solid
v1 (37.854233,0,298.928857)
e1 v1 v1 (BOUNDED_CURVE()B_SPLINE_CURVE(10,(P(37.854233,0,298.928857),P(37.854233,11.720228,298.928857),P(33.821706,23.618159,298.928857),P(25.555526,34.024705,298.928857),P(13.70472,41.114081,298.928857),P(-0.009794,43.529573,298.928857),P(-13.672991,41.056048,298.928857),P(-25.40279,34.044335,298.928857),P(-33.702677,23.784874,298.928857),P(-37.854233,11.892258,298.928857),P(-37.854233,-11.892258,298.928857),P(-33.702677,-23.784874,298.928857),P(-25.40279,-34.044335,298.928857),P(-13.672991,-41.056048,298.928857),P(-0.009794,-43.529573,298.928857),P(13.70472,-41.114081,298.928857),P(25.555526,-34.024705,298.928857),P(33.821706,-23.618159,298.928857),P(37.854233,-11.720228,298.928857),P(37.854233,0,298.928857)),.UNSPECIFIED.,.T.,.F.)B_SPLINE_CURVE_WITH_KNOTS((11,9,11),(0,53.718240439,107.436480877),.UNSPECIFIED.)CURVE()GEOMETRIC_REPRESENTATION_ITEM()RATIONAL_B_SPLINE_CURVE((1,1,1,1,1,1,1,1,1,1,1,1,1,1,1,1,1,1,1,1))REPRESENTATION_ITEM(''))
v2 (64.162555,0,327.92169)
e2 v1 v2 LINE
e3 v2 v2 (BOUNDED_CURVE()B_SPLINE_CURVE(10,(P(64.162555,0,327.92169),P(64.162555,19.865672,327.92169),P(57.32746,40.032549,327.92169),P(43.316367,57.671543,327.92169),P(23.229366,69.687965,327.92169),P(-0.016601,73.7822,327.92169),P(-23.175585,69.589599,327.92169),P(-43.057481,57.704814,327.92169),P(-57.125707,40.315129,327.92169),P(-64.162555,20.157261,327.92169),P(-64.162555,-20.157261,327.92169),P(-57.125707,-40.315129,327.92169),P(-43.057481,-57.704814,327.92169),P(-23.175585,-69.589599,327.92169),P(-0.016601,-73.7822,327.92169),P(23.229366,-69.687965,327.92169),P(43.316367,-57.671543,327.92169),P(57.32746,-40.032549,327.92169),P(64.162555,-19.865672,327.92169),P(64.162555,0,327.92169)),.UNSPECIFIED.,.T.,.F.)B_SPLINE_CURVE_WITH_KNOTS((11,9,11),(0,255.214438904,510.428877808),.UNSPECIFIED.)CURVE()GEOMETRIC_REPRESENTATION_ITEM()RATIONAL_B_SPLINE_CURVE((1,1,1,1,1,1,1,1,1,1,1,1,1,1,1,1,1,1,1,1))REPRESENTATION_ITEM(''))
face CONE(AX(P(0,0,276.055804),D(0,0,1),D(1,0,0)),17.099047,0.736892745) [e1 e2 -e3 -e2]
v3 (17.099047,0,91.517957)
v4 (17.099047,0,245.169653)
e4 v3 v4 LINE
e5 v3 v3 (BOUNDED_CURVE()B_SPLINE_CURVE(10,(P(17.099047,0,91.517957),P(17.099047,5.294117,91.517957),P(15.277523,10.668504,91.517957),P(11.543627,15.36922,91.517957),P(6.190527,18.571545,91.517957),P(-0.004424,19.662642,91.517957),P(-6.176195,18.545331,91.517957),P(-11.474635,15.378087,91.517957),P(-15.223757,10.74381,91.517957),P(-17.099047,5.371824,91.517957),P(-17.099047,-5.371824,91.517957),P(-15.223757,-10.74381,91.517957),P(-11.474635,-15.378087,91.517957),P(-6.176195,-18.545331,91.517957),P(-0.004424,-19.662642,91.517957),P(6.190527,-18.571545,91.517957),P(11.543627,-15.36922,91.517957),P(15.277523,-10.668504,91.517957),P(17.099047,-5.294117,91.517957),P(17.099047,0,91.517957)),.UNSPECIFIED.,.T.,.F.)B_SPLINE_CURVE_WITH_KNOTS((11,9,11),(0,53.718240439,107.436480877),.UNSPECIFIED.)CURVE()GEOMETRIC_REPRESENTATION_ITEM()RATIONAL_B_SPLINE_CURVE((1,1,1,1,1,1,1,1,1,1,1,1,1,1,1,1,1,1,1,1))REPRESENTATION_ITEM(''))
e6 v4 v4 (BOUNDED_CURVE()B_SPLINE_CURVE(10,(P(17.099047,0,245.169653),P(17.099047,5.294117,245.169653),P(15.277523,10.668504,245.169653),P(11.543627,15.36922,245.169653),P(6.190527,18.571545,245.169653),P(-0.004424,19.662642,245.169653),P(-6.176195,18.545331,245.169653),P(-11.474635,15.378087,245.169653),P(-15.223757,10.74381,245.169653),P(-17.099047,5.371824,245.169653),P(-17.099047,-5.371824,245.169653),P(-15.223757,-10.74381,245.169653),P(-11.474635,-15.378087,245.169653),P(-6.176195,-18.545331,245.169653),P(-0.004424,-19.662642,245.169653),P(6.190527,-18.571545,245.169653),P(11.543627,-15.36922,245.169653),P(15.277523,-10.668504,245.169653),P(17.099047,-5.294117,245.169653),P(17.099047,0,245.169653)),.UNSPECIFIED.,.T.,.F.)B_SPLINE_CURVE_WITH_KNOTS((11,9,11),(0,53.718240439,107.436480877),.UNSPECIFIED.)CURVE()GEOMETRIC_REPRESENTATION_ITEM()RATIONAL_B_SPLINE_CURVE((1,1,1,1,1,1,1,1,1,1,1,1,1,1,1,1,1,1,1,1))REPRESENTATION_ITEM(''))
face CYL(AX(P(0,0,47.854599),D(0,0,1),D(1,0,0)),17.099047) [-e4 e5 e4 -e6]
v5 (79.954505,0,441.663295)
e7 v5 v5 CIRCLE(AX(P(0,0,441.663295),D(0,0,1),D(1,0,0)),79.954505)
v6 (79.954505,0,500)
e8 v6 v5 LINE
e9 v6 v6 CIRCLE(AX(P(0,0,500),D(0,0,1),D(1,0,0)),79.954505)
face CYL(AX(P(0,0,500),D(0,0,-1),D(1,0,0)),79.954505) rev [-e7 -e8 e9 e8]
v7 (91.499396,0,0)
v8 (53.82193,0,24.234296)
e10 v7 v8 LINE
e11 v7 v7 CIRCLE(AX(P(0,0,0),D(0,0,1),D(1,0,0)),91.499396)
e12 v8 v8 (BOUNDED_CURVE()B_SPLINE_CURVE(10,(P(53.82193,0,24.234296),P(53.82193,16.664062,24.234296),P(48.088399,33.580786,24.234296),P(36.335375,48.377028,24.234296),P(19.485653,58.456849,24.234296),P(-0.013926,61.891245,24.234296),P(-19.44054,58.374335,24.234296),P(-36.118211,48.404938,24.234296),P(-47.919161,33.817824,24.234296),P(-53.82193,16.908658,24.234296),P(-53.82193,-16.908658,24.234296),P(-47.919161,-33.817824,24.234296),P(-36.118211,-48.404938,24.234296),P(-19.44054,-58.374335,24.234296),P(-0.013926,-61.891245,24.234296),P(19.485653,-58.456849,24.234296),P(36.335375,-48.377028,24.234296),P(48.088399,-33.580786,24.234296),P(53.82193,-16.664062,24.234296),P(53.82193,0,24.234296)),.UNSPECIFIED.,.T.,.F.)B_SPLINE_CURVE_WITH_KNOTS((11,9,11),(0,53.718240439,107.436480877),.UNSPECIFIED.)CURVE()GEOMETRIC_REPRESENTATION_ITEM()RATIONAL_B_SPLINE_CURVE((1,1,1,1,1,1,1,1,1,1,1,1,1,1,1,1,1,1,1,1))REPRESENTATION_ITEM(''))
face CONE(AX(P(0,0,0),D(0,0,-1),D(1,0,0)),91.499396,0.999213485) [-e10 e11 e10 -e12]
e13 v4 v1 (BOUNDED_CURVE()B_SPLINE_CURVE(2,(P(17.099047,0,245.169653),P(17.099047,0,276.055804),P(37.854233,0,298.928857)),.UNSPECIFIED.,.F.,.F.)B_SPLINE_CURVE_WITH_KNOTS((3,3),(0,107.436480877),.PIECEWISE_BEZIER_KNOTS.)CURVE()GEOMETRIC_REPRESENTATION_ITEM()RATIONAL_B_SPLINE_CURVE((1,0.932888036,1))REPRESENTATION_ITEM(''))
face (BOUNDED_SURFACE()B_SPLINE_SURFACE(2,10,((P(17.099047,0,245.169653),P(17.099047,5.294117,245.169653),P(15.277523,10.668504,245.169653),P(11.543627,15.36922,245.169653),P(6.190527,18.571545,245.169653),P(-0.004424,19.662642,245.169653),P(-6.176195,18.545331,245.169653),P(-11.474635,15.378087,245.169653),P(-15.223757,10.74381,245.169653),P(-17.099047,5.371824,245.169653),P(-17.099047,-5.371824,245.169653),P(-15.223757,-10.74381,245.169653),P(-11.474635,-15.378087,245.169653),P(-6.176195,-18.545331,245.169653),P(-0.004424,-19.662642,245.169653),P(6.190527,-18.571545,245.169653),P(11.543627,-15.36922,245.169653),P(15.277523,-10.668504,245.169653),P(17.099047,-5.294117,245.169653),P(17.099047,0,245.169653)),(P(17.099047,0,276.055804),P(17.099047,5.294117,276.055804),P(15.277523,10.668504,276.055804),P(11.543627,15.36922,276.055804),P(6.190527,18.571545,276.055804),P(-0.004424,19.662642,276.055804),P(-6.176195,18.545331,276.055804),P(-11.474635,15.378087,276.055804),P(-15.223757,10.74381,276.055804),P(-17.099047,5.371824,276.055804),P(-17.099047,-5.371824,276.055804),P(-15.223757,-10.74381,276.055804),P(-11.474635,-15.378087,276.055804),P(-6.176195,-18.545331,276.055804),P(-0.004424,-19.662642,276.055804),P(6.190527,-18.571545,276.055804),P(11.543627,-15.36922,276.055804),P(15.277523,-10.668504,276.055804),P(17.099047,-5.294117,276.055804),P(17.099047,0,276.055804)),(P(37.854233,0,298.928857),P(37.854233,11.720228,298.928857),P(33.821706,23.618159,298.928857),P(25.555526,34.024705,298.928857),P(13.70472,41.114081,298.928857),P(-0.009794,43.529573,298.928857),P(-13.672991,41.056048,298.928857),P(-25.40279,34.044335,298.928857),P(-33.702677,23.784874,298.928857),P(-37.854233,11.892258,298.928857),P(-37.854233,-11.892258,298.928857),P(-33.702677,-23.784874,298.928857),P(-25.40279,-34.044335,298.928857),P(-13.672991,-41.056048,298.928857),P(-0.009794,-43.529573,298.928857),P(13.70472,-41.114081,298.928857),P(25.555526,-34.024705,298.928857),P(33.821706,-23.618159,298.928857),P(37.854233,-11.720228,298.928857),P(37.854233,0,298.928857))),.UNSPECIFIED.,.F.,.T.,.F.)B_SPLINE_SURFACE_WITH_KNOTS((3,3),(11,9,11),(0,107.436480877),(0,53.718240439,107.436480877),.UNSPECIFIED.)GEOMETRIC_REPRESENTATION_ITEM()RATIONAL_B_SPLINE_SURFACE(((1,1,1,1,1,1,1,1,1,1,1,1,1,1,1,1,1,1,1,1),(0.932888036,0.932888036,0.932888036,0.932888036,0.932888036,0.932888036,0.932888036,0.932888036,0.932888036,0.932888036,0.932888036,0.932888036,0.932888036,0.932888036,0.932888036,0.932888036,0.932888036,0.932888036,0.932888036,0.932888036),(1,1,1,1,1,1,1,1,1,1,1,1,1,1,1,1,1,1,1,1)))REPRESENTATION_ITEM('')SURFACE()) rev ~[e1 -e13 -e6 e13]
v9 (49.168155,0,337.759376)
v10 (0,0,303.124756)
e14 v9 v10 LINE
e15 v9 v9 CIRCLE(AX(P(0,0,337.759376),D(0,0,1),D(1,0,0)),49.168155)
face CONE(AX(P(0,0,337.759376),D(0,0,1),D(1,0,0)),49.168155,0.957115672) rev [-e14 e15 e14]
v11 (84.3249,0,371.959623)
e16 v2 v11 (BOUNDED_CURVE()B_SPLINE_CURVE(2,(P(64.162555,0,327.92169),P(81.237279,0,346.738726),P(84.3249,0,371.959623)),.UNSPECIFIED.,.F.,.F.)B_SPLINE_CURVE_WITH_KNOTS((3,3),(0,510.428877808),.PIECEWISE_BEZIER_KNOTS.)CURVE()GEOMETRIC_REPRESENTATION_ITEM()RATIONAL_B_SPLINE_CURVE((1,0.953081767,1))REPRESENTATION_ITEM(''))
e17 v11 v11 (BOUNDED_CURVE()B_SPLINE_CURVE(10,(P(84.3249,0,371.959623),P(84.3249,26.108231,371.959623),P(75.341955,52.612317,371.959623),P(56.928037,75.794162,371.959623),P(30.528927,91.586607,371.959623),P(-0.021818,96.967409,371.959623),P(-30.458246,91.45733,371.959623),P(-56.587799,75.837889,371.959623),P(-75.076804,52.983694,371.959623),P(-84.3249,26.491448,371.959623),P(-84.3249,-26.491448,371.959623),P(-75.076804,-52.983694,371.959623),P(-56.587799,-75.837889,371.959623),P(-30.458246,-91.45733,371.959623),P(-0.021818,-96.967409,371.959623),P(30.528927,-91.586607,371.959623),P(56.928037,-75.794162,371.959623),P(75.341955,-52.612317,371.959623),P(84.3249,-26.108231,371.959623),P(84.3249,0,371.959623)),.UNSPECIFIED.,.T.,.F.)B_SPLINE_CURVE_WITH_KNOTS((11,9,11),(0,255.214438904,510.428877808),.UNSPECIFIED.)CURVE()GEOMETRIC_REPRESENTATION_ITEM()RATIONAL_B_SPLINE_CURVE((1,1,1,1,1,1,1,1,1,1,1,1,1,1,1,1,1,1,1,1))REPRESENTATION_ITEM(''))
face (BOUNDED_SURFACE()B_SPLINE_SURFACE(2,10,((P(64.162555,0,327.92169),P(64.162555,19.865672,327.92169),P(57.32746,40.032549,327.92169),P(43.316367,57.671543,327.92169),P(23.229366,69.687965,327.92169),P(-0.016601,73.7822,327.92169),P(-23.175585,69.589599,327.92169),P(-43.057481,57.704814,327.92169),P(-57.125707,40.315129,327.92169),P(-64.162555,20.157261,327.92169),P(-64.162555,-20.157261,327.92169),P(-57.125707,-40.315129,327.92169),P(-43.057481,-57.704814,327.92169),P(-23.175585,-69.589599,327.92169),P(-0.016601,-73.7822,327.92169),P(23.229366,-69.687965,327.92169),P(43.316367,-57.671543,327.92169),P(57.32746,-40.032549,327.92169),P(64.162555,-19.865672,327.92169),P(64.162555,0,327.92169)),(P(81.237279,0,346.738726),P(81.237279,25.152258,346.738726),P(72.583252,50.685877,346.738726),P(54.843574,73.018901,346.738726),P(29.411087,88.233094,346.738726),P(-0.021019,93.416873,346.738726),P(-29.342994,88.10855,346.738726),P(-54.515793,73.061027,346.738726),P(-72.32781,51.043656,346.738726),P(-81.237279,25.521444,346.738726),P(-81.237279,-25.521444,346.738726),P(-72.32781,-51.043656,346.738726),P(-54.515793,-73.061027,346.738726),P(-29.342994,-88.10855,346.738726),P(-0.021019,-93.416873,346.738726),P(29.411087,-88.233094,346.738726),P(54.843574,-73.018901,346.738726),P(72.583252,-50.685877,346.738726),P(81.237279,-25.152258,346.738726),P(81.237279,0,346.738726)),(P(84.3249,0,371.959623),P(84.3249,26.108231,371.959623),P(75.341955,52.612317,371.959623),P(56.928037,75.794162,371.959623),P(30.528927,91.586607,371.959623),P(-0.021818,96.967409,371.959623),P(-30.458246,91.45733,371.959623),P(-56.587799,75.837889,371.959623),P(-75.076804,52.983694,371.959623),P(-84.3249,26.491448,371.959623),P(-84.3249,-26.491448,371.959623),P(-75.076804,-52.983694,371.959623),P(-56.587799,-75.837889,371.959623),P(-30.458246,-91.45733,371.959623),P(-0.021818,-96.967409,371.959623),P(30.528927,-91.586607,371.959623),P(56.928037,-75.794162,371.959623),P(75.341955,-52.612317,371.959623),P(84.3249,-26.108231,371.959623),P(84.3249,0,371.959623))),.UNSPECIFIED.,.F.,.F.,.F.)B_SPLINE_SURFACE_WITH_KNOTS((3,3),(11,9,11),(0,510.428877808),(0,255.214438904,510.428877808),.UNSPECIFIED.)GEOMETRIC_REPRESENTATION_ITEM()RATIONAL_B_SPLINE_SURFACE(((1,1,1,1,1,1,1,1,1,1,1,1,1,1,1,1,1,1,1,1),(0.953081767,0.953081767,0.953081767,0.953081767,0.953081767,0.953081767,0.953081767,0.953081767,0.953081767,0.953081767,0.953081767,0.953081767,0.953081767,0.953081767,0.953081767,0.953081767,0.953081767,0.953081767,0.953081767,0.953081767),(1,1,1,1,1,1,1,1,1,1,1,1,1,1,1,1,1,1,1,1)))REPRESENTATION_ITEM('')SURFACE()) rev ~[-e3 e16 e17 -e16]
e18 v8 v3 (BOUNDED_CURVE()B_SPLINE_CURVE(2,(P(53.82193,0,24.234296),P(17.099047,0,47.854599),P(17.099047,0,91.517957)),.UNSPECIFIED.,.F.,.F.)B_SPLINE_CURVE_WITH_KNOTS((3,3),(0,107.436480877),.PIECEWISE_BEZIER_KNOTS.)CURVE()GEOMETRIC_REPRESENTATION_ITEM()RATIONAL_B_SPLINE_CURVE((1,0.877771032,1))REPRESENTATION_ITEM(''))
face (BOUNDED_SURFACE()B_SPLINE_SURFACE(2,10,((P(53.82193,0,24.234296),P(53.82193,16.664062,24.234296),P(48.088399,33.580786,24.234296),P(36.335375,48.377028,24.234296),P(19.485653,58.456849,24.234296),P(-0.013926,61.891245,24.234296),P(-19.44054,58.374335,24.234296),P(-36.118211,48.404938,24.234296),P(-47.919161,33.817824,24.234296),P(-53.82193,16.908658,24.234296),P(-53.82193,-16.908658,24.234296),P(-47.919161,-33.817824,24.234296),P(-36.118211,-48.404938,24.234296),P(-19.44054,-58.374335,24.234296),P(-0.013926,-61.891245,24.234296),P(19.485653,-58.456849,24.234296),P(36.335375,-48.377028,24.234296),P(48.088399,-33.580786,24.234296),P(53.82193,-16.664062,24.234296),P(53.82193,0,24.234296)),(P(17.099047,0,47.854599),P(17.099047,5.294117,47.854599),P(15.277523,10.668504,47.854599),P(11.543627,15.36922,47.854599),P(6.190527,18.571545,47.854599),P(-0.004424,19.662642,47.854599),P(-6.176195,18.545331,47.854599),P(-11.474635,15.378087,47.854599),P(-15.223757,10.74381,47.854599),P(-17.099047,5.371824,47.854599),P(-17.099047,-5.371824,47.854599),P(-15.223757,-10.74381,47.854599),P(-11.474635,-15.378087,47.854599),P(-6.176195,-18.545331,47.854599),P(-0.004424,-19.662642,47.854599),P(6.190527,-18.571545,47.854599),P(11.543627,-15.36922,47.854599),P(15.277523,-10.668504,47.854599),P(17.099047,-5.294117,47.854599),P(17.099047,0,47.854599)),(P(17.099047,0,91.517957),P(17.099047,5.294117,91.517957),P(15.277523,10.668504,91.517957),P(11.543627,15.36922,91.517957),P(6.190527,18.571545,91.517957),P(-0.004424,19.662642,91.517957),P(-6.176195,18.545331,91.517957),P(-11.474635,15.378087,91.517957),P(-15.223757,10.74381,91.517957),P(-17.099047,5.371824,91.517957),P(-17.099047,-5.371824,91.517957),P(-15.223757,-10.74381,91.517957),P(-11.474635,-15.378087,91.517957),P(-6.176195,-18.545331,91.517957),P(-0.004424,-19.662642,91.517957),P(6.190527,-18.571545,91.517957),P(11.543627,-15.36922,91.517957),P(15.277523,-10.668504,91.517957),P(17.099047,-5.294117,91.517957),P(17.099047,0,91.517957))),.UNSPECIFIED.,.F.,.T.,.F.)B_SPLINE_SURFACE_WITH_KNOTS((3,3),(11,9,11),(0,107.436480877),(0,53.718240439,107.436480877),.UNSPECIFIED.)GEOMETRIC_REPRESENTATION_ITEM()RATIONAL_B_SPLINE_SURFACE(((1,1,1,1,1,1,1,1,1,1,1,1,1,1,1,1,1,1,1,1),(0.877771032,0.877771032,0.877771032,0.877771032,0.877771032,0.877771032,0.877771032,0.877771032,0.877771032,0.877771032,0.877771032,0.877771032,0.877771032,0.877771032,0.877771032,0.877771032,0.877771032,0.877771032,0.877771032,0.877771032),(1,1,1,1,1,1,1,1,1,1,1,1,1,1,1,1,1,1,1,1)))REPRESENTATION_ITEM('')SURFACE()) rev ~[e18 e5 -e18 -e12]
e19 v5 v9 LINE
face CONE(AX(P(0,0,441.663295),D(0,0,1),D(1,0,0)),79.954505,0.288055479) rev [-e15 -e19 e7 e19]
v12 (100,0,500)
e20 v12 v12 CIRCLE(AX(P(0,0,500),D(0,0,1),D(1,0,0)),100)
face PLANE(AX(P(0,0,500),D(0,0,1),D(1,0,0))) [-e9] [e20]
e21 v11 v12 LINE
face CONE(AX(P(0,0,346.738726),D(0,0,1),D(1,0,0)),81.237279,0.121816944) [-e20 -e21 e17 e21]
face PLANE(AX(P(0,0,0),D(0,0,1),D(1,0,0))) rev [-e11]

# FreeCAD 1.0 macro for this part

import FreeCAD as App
import Part
import Sketcher
from FreeCAD import Vector
Q = App.Units.Quantity


def edges_at(feature, points):
    """Names of the edges that pass closest to the given points."""
    edges = feature.Shape.Edges
    near = lambda p: min(range(len(edges)), key=lambda i: edges[i].distToShape(Part.Vertex(*p))[0])
    return sorted({f"Edge{near(p) + 1}" for p in points})

doc = App.newDocument("Part")
body = doc.addObject("PartDesign::Body", "Body")

# Sketch on XZ plane
sketch1 = body.newObject("Sketcher::SketchObject", "Sketch")
sketch1.AttachmentSupport = (doc.getObject("XZ_Plane"), [""])
sketch1.MapMode = "FlatFace"
sketch1.addGeometry([
    Part.LineSegment(Vector(100, 500, 0), Vector(79.954505, 500, 0)),  # 0
    Part.LineSegment(Vector(79.954505, 500, 0), Vector(79.954505, 441.663295, 0)),  # 1
    Part.LineSegment(Vector(79.954505, 441.663295, 0), Vector(49.168155, 337.759376, 0)),  # 2
    Part.LineSegment(Vector(49.168155, 337.759376, 0), Vector(0, 303.124756, 0)),  # 3
    Part.LineSegment(Vector(0, 303.124756, 0), Vector(0, 0, 0)),  # 4
    Part.LineSegment(Vector(0, 0, 0), Vector(91.499396, 0, 0)),  # 5
    Part.LineSegment(Vector(91.499396, 0, 0), Vector(17.099047, 47.854599, 0)),  # 6
    Part.LineSegment(Vector(17.099047, 47.854599, 0), Vector(17.099047, 276.055804, 0)),  # 7
    Part.LineSegment(Vector(17.099047, 276.055804, 0), Vector(81.237279, 346.738726, 0)),  # 8
    Part.LineSegment(Vector(81.237279, 346.738726, 0), Vector(100, 500, 0)),  # 9
], False)
sketch1.addConstraint([
    Sketcher.Constraint("Coincident", 0, 2, 1, 1),
    Sketcher.Constraint("Coincident", 1, 2, 2, 1),
    Sketcher.Constraint("Coincident", 2, 2, 3, 1),
    Sketcher.Constraint("Coincident", 3, 2, 4, 1),
    Sketcher.Constraint("Coincident", 4, 2, 5, 1),
    Sketcher.Constraint("Coincident", 5, 2, 6, 1),
    Sketcher.Constraint("Coincident", 6, 2, 7, 1),
    Sketcher.Constraint("Coincident", 7, 2, 8, 1),
    Sketcher.Constraint("Coincident", 8, 2, 9, 1),
    Sketcher.Constraint("Coincident", 9, 2, 0, 1),
    Sketcher.Constraint("Horizontal", 0),
    Sketcher.Constraint("Vertical", 1),
    Sketcher.Constraint("Vertical", 4),
    Sketcher.Constraint("Horizontal", 5),
    Sketcher.Constraint("Vertical", 7),
    Sketcher.Constraint("Coincident", 4, 2, -1, 1),
    Sketcher.Constraint("DistanceY", -1, 1, 0, 2, Q("500 mm")),
    Sketcher.Constraint("DistanceX", -1, 1, 9, 2, Q("100 mm")),
    Sketcher.Constraint("DistanceY", -1, 1, 6, 2, Q("47.854599 mm")),
    Sketcher.Constraint("Distance", 8, Q("95.445211 mm")),
    Sketcher.Constraint("DistanceX", 0, 2, 0, 1, Q("20.045495 mm")),
    Sketcher.Constraint("DistanceX", 5, 1, 5, 2, Q("91.499396 mm")),
    Sketcher.Constraint("DistanceY", 1, 2, 1, 1, Q("58.336705 mm")),
    Sketcher.Constraint("DistanceY", 4, 2, 4, 1, Q("303.124756 mm")),
    Sketcher.Constraint("DistanceY", 7, 1, 7, 2, Q("228.201205 mm")),
    Sketcher.Constraint("DistanceX", -1, 1, 8, 2, Q("81.237279 mm")),
    Sketcher.Constraint("DistanceX", 2, 2, 1, 2, Q("30.78635 mm")),
    Sketcher.Constraint("DistanceY", 2, 2, 1, 2, Q("103.903919 mm")),
    Sketcher.Constraint("DistanceX", 6, 2, 5, 2, Q("74.400349 mm")),
])
revolution = body.newObject("PartDesign::Revolution", "Revolution")
revolution.Profile = sketch1
revolution.ReferenceAxis = (sketch1, ["V_Axis"])
revolution.Angle = 360
doc.recompute()

fillet = body.newObject("PartDesign::Fillet", "Fillet")
fillet.Base = (revolution, edges_at(revolution, [(-81.237, 0, 346.739), (-17.099, 0, 276.056), (-17.099, 0, 47.855)]))
fillet.Radius = 80

doc.recompute()
